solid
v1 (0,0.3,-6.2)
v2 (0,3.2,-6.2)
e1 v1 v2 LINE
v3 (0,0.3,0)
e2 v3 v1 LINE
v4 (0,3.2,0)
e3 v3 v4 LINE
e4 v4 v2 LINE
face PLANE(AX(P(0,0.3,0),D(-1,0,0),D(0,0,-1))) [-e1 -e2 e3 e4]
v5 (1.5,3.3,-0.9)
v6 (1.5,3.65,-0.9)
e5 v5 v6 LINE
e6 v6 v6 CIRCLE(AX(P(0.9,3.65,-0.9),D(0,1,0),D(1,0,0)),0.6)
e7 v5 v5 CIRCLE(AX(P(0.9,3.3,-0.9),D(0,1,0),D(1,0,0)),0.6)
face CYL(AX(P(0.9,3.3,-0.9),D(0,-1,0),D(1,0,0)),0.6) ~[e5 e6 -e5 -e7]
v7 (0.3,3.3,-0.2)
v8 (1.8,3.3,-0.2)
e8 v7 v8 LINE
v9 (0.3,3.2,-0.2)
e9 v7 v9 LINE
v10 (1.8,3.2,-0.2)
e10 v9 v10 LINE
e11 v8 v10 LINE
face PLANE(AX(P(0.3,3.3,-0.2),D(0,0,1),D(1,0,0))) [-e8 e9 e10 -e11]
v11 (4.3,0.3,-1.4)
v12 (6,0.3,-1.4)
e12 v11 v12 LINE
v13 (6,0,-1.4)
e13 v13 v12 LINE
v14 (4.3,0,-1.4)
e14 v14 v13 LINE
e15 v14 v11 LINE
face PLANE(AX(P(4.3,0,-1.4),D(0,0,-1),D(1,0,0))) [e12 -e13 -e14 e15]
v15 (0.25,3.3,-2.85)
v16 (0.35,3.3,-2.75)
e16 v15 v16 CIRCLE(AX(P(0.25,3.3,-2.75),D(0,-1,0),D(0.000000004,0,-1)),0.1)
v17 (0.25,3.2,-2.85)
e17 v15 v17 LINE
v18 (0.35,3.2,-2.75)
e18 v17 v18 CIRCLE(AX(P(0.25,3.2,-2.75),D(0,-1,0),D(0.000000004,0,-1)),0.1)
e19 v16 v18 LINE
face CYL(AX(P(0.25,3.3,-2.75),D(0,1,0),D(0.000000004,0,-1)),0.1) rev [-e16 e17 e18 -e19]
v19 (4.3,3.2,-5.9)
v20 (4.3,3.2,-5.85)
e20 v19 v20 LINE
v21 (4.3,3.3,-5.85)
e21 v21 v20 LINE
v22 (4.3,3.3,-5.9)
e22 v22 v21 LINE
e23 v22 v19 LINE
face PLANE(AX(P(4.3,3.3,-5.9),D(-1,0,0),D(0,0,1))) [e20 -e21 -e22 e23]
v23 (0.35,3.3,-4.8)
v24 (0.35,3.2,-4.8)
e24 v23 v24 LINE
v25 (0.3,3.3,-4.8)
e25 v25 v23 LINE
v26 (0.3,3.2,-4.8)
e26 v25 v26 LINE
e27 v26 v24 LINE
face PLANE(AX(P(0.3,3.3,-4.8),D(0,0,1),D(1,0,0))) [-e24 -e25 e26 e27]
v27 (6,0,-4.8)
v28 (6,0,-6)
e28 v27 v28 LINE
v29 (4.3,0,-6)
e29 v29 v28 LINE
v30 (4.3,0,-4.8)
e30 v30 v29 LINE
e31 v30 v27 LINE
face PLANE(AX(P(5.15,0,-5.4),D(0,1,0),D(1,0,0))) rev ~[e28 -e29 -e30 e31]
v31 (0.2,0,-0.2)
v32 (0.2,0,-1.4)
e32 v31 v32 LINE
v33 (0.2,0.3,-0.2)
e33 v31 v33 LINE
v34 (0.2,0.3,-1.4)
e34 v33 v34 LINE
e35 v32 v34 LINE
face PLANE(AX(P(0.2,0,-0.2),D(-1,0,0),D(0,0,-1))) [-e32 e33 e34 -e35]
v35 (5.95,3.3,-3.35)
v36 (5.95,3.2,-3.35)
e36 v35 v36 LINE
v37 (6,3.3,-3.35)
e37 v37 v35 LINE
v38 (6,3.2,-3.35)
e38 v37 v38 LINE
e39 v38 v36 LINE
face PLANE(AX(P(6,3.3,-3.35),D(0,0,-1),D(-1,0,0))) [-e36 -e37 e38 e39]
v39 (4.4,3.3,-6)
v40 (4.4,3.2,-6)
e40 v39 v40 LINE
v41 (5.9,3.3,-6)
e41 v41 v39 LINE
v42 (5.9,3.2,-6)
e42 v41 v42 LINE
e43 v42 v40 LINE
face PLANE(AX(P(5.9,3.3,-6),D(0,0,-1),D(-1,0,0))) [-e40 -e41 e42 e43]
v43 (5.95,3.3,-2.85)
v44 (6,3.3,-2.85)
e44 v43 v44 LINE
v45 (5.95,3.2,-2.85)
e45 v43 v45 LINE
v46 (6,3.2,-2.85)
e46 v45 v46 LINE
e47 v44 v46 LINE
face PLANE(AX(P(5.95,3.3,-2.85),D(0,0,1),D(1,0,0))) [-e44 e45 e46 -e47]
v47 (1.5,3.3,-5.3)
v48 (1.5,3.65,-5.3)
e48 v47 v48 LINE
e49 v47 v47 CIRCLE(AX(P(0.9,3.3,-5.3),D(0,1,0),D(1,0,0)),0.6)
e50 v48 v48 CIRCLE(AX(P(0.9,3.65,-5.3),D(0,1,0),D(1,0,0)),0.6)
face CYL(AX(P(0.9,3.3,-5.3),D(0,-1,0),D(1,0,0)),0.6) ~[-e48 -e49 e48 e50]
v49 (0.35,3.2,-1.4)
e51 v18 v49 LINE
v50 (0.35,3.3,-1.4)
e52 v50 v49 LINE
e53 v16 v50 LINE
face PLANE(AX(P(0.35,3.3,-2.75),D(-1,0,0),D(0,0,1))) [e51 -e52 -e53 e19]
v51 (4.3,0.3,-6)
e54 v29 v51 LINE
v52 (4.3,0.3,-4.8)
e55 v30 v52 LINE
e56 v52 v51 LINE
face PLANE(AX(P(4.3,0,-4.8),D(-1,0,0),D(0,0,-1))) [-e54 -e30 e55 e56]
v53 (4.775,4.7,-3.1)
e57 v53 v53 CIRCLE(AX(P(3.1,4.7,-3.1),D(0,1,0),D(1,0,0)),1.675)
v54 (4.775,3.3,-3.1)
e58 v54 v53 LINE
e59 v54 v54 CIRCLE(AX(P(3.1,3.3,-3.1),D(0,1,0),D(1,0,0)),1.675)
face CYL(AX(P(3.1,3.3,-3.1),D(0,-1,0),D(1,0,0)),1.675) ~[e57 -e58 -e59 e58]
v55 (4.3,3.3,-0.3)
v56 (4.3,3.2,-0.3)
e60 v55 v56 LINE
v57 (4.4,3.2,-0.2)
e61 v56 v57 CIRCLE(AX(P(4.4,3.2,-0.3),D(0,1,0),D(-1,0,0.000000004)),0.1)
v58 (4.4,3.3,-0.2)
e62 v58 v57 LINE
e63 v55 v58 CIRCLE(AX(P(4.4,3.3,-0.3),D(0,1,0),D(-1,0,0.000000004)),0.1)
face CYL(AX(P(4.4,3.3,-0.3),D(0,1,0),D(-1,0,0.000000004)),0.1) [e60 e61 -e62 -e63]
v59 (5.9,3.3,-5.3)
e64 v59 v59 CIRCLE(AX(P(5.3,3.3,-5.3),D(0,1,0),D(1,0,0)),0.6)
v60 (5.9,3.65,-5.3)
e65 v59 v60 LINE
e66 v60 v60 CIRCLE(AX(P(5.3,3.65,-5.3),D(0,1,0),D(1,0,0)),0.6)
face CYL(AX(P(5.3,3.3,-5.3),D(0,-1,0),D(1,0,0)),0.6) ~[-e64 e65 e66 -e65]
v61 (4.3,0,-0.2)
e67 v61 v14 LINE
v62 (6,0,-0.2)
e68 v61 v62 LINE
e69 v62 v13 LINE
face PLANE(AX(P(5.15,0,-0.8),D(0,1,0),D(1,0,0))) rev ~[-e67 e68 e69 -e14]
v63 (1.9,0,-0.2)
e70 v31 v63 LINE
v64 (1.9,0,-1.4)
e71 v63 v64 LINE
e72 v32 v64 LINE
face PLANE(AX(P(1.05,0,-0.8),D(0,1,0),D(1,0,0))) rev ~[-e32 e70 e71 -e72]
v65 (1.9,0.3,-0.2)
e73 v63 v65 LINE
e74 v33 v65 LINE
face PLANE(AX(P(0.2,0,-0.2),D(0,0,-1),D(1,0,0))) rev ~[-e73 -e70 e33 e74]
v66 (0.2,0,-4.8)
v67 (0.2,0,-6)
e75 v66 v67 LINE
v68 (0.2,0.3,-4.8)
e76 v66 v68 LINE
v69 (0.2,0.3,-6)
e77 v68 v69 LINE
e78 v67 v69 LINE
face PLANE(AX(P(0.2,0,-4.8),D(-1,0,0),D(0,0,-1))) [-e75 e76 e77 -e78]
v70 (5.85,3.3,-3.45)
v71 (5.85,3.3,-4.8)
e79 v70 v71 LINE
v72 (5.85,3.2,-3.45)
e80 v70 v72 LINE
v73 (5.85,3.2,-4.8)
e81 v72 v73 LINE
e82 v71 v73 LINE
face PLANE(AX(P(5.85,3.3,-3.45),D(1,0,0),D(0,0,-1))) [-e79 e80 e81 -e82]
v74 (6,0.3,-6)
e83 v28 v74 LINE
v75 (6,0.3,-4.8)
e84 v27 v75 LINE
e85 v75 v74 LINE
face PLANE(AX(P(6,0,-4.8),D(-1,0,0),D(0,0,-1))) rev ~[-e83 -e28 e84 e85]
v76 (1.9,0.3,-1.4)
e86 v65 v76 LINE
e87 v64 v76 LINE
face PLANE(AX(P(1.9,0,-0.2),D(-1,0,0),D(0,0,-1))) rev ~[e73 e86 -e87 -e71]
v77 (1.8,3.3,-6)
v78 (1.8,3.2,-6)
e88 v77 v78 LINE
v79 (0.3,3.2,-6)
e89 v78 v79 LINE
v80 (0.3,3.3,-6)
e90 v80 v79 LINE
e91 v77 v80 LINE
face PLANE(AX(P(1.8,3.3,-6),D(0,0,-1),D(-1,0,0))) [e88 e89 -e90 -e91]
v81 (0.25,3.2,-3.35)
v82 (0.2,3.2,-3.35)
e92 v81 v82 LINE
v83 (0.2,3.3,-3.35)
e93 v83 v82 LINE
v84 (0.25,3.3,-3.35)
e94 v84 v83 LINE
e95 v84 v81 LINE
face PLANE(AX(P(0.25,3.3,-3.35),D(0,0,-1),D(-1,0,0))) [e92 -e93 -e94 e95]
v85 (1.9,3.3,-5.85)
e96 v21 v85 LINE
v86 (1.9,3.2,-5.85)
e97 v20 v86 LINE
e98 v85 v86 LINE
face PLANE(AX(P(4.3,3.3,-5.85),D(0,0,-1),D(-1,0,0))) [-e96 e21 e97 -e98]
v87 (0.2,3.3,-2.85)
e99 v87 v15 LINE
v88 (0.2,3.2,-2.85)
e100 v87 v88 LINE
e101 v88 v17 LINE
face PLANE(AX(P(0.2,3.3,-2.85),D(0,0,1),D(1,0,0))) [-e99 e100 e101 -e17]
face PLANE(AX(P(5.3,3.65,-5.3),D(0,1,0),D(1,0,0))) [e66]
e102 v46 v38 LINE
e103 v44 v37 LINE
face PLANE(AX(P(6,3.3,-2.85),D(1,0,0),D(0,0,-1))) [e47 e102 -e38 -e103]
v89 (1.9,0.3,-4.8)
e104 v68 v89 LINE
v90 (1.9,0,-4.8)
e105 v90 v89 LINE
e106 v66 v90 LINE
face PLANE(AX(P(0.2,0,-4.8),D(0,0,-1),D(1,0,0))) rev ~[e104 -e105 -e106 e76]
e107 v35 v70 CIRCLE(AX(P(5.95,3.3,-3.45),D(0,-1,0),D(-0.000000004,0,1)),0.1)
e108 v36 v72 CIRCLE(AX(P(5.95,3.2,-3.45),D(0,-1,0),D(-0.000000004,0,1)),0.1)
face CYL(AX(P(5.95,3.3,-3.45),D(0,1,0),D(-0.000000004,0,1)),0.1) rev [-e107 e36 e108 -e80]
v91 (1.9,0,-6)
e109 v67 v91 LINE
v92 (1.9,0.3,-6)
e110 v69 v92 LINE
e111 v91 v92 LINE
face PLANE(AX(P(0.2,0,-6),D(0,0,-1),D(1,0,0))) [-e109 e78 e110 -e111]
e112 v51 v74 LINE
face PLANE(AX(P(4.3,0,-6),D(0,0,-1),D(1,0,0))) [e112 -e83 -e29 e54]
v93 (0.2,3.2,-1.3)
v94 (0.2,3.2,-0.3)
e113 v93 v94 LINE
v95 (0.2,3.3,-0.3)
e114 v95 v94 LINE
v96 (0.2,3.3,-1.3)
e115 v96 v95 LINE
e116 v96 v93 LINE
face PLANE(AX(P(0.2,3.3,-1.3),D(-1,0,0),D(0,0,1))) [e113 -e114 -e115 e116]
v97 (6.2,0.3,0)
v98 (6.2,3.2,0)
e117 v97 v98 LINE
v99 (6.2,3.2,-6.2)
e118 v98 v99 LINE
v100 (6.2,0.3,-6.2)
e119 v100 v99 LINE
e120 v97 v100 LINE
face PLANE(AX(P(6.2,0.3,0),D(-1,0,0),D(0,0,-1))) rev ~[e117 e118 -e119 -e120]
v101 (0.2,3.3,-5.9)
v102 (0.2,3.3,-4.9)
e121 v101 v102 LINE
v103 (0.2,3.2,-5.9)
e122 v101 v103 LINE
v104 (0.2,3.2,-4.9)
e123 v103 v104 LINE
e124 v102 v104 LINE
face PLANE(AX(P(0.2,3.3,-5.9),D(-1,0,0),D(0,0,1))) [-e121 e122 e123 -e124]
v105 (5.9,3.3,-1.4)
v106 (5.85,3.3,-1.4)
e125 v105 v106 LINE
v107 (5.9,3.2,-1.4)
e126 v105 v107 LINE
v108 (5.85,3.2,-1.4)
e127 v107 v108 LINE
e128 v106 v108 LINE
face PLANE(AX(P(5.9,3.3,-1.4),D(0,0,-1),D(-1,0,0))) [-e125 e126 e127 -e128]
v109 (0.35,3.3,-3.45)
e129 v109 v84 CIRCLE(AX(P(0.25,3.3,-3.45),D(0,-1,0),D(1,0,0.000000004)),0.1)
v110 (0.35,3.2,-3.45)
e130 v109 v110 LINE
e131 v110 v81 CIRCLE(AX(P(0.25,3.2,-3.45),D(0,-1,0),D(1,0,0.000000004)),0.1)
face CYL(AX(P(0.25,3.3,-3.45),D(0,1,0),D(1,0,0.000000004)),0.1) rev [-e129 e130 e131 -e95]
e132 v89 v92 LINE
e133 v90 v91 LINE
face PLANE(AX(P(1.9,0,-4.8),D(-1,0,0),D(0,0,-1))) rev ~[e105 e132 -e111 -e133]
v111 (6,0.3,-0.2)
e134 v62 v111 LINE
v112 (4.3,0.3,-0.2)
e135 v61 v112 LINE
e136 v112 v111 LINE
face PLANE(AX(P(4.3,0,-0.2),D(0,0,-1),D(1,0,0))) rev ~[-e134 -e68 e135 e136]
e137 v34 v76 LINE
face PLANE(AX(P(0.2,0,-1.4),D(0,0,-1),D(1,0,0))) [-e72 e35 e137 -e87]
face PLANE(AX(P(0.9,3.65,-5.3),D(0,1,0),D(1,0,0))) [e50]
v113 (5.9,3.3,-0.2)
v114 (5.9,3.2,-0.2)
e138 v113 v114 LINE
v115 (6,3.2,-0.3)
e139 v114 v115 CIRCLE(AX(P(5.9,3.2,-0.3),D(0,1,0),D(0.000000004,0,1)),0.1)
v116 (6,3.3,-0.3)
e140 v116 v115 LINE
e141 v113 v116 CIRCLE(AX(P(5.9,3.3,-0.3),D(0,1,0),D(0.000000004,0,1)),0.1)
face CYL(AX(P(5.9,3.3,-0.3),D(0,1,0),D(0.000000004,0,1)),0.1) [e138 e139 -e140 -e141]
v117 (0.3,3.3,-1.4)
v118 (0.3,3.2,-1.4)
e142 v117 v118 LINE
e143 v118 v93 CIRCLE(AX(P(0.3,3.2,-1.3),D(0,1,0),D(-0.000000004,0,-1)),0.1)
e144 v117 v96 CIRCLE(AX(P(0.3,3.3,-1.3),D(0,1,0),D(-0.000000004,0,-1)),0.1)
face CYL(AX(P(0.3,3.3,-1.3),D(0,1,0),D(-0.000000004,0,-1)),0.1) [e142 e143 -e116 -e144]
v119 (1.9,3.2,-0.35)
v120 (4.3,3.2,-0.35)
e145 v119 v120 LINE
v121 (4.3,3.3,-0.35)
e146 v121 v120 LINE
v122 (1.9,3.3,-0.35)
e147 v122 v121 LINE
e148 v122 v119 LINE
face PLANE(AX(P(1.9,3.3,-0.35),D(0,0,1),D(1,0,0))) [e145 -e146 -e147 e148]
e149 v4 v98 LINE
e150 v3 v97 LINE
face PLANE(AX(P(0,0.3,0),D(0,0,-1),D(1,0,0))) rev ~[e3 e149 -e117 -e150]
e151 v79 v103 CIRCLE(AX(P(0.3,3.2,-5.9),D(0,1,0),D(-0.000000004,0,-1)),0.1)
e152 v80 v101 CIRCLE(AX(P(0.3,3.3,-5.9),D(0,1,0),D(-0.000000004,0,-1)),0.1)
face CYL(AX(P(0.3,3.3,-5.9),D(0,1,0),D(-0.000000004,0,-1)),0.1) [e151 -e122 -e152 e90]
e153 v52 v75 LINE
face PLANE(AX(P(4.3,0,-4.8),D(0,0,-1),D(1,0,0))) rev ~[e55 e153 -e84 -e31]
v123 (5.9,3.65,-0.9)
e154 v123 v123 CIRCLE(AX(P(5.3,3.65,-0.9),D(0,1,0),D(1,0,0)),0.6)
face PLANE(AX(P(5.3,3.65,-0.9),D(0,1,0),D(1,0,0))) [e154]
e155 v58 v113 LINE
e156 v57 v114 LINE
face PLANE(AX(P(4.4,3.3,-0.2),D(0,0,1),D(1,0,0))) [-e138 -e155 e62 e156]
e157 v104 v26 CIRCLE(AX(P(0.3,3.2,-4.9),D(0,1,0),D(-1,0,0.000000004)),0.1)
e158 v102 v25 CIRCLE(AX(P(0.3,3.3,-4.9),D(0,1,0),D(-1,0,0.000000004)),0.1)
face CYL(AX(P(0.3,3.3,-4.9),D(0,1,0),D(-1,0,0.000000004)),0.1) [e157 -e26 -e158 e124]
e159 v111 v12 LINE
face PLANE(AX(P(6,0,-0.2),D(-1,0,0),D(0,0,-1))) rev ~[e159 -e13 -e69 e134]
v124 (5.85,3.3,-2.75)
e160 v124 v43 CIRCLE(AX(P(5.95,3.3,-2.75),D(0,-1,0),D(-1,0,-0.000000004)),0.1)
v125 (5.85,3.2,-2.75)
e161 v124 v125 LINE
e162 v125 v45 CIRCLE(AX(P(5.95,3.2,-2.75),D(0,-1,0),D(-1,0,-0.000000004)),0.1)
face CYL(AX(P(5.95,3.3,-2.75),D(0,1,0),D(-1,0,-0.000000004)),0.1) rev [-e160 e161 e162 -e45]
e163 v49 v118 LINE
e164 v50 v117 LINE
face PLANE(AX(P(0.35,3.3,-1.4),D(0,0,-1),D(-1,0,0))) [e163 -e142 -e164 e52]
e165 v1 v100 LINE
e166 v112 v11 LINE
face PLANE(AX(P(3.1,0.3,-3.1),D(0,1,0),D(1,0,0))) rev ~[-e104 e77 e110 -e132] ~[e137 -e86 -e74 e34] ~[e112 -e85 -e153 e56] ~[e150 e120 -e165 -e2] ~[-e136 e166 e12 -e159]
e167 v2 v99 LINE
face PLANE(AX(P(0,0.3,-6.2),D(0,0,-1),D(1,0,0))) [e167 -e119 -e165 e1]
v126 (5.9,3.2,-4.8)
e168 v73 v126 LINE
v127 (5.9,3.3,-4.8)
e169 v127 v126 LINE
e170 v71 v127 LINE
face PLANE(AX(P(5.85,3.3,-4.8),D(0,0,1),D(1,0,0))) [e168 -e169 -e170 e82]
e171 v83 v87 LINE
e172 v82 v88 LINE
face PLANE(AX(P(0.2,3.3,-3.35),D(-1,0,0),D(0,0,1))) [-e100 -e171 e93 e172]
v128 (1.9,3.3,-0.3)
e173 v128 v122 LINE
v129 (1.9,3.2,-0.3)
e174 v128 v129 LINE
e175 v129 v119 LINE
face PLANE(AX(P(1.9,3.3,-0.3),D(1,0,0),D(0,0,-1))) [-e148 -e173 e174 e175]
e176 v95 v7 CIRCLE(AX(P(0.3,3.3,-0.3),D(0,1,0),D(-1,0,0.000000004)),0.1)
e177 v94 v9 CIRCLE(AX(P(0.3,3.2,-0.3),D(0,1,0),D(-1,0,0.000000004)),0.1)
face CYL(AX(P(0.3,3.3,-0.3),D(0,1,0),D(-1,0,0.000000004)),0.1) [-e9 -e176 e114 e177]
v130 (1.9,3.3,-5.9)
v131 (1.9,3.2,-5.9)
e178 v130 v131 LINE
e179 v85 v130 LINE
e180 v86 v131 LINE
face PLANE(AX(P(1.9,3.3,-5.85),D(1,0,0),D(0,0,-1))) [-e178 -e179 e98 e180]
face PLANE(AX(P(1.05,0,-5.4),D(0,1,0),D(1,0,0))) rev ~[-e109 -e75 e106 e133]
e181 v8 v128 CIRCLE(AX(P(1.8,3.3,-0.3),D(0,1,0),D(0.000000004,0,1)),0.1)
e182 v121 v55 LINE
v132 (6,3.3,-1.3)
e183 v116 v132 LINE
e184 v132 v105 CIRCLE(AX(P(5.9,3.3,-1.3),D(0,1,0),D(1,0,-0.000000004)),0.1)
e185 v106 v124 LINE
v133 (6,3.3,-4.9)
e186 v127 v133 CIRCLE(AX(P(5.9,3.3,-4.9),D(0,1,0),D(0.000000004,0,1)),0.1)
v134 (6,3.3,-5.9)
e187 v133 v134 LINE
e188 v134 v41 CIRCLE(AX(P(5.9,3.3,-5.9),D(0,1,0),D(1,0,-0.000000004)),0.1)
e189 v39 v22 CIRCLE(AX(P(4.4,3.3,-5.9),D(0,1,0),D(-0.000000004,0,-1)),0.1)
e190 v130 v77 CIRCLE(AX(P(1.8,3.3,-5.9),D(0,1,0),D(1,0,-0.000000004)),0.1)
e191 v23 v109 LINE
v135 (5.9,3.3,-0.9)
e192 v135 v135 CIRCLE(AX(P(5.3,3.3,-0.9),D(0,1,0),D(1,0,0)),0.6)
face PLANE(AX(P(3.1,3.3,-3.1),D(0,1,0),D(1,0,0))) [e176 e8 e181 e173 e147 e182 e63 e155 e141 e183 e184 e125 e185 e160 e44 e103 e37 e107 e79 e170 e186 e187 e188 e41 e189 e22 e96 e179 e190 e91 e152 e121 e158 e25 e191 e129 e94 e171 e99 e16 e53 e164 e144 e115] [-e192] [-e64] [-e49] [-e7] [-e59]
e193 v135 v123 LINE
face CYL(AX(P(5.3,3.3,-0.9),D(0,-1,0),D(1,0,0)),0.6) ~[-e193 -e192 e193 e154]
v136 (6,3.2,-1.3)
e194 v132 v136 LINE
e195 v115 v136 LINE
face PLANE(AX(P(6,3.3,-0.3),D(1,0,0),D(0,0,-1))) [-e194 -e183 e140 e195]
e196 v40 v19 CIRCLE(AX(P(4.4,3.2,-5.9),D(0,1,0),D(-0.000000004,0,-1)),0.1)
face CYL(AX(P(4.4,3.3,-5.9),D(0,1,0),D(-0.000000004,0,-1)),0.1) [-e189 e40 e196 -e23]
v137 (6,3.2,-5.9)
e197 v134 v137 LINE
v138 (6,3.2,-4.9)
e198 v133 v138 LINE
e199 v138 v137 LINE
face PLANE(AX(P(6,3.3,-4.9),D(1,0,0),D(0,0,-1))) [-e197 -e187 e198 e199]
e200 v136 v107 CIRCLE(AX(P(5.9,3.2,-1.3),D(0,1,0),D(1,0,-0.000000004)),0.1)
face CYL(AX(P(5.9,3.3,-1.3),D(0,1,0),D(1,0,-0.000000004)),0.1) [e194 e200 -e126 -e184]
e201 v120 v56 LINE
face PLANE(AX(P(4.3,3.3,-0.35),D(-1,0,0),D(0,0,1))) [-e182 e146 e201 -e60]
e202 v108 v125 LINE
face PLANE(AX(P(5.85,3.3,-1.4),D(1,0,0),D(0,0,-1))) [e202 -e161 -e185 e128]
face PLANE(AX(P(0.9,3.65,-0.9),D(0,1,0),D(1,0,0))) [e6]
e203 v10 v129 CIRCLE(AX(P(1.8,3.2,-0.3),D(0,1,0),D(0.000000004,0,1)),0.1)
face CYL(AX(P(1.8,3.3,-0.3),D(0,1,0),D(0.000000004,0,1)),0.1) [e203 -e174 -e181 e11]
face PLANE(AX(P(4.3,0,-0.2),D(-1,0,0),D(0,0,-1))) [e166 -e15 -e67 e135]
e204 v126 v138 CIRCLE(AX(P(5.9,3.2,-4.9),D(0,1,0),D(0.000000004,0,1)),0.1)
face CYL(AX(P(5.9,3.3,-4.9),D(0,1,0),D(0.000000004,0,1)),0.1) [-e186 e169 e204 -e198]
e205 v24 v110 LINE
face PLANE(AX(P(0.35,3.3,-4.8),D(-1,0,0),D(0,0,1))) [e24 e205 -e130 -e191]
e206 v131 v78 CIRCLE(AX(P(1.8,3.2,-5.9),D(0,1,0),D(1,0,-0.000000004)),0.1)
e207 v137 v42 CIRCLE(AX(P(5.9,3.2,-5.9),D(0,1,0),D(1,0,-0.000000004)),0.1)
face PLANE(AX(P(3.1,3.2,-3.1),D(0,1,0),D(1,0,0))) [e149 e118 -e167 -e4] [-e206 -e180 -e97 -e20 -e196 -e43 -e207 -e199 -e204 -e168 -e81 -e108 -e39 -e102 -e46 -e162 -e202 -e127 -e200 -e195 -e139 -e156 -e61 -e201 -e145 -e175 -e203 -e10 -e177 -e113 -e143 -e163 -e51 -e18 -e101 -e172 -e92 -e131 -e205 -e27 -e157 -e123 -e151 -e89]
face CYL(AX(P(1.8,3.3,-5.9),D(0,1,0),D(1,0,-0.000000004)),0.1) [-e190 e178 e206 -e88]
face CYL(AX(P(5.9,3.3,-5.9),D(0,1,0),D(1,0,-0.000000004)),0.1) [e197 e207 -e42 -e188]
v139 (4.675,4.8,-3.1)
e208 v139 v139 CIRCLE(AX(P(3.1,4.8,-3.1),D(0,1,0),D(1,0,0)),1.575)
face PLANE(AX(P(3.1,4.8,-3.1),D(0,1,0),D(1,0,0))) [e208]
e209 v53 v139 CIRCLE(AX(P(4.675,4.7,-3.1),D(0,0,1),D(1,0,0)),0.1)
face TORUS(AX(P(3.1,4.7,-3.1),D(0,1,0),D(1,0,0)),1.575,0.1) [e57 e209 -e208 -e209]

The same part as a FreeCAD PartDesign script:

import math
import FreeCAD as App
import Part
import Sketcher
from FreeCAD import Vector


def edges_at(feature, points):
    """Names of the edges that pass closest to the given points."""
    edges = feature.Shape.Edges
    near = lambda p: min(range(len(edges)), key=lambda i: edges[i].distToShape(Part.Vertex(*p))[0])
    return sorted({f"Edge{near(p) + 1}" for p in points})


def add_polygon(sketch, points):
    """Adds a closed chain of lines whose ends are joined by coincident constraints."""
    first, n = sketch.GeometryCount, len(points)
    for a, b in zip(points, points[1:] + points[:1]):
        sketch.addGeometry(Part.LineSegment(App.Vector(*a, 0), App.Vector(*b, 0)), False)
    for i in range(n):
        sketch.addConstraint(Sketcher.Constraint("Coincident", first + i, 2, first + (i + 1) % n, 1))

doc = App.newDocument("Part")
body = doc.addObject("PartDesign::Body", "Body")

# Sketch on XZ plane
sketch1 = doc.addObject("Sketcher::SketchObject", "Sketch")
body.addObject(sketch1)
sketch1.AttachmentSupport = (doc.XZ_Plane, [""])
sketch1.MapMode = "FlatFace"
add_polygon(sketch1, [(0.2, -6), (0.2, -4.8), (1.9, -4.8), (1.9, -6)])  # lines 0-3
sketch1.addConstraint(Sketcher.Constraint("Vertical", 0))
sketch1.addConstraint(Sketcher.Constraint("Horizontal", 1))
sketch1.addConstraint(Sketcher.Constraint("Vertical", 2))
sketch1.addConstraint(Sketcher.Constraint("Horizontal", 3))
sketch1.addConstraint(Sketcher.Constraint("DistanceX", 1, 1, 1, 2, 1.7))
sketch1.addConstraint(Sketcher.Constraint("DistanceY", 0, 1, 0, 2, 1.2))
sketch1.addConstraint(Sketcher.Constraint("DistanceY", 2, 2, -1, 1, 6.0))
sketch1.addConstraint(Sketcher.Constraint("DistanceX", -1, 1, 0, 2, 0.2))
pad1 = doc.addObject("PartDesign::Pad", "Pad")
body.addObject(pad1)
pad1.Profile = sketch1
pad1.Length = 0.3
pad1.Reversed = True
body2 = doc.addObject("PartDesign::Body", "Body001")

# Sketch on XZ plane
sketch2 = doc.addObject("Sketcher::SketchObject", "Sketch001")
body2.addObject(sketch2)
sketch2.AttachmentSupport = (doc.getObject("XZ_Plane001"), [""])
sketch2.MapMode = "FlatFace"
add_polygon(sketch2, [(0.2, -1.4), (0.2, -0.2), (1.9, -0.2), (1.9, -1.4)])  # lines 0-3
sketch2.addConstraint(Sketcher.Constraint("Vertical", 0))
sketch2.addConstraint(Sketcher.Constraint("Horizontal", 1))
sketch2.addConstraint(Sketcher.Constraint("Vertical", 2))
sketch2.addConstraint(Sketcher.Constraint("Horizontal", 3))
sketch2.addConstraint(Sketcher.Constraint("DistanceX", 1, 1, 1, 2, 1.7))
sketch2.addConstraint(Sketcher.Constraint("DistanceY", 0, 1, 0, 2, 1.2))
sketch2.addConstraint(Sketcher.Constraint("DistanceX", -1, 1, 0, 2, 0.2))
sketch2.addConstraint(Sketcher.Constraint("DistanceY", 0, 2, -1, 1, 0.2))
pad2 = doc.addObject("PartDesign::Pad", "Pad001")
body2.addObject(pad2)
pad2.Profile = sketch2
pad2.Length = 0.3
pad2.Reversed = True
body3 = doc.addObject("PartDesign::Body", "Body002")

# Sketch on XZ plane
sketch3 = doc.addObject("Sketcher::SketchObject", "Sketch002")
body3.addObject(sketch3)
sketch3.AttachmentSupport = (doc.getObject("XZ_Plane002"), [""])
sketch3.MapMode = "FlatFace"
add_polygon(sketch3, [(4.3, -1.4), (4.3, -0.2), (6, -0.2), (6, -1.4)])  # lines 0-3
sketch3.addConstraint(Sketcher.Constraint("Vertical", 0))
sketch3.addConstraint(Sketcher.Constraint("Horizontal", 1))
sketch3.addConstraint(Sketcher.Constraint("Vertical", 2))
sketch3.addConstraint(Sketcher.Constraint("Horizontal", 3))
sketch3.addConstraint(Sketcher.Constraint("DistanceX", 1, 1, 1, 2, 1.7))
sketch3.addConstraint(Sketcher.Constraint("DistanceY", 0, 1, 0, 2, 1.2))
sketch3.addConstraint(Sketcher.Constraint("DistanceX", -1, 1, 1, 2, 6.0))
sketch3.addConstraint(Sketcher.Constraint("DistanceY", 0, 2, -1, 1, 0.2))
pad3 = doc.addObject("PartDesign::Pad", "Pad002")
body3.addObject(pad3)
pad3.Profile = sketch3
pad3.Length = 0.3
pad3.Reversed = True
body4 = doc.addObject("PartDesign::Body", "Body003")

# Sketch on XZ plane
sketch4 = doc.addObject("Sketcher::SketchObject", "Sketch003")
body4.addObject(sketch4)
sketch4.AttachmentSupport = (doc.getObject("XZ_Plane003"), [""])
sketch4.MapMode = "FlatFace"
add_polygon(sketch4, [(4.3, -6), (4.3, -4.8), (6, -4.8), (6, -6)])  # lines 0-3
sketch4.addConstraint(Sketcher.Constraint("Vertical", 0))
sketch4.addConstraint(Sketcher.Constraint("Horizontal", 1))
sketch4.addConstraint(Sketcher.Constraint("Vertical", 2))
sketch4.addConstraint(Sketcher.Constraint("Horizontal", 3))
sketch4.addConstraint(Sketcher.Constraint("DistanceX", 1, 1, 1, 2, 1.7))
sketch4.addConstraint(Sketcher.Constraint("DistanceY", 0, 1, 0, 2, 1.2))
sketch4.addConstraint(Sketcher.Constraint("DistanceX", -1, 1, 1, 2, 6.0))
sketch4.addConstraint(Sketcher.Constraint("DistanceY", 2, 2, -1, 1, 6.0))
pad4 = doc.addObject("PartDesign::Pad", "Pad003")
body4.addObject(pad4)
pad4.Profile = sketch4
pad4.Length = 0.3
pad4.Reversed = True
body.AllowCompound = True
doc.recompute()

boolean = doc.addObject("PartDesign::Boolean", "Boolean")
body.addObject(boolean)
boolean.Type = "Fuse"
boolean.addObjects([body2])
doc.recompute()

boolean2 = doc.addObject("PartDesign::Boolean", "Boolean001")
body.addObject(boolean2)
boolean2.Type = "Fuse"
boolean2.addObjects([body3])
doc.recompute()

boolean3 = doc.addObject("PartDesign::Boolean", "Boolean002")
body.addObject(boolean3)
boolean3.Type = "Fuse"
boolean3.addObjects([body4])

# Sketch on XZ plane
sketch5 = doc.addObject("Sketcher::SketchObject", "Sketch004")
body.addObject(sketch5)
sketch5.AttachmentSupport = (doc.XZ_Plane, [""])
sketch5.MapMode = "FlatFace"
sketch5.AttachmentOffset = App.Placement(Vector(0, 0, -0.3), App.Rotation())
add_polygon(sketch5, [(0, -6), (0, 0), (6, 0), (6, -6)])  # lines 0-3
sketch5.addConstraint(Sketcher.Constraint("Vertical", 0))
sketch5.addConstraint(Sketcher.Constraint("Horizontal", 1))
sketch5.addConstraint(Sketcher.Constraint("Vertical", 2))
sketch5.addConstraint(Sketcher.Constraint("Horizontal", 3))
sketch5.addConstraint(Sketcher.Constraint("Coincident", 0, 2, -1, 1))
sketch5.addConstraint(Sketcher.Constraint("Equal", 3, 0))
sketch5.addConstraint(Sketcher.Constraint("DistanceX", 1, 1, 1, 2, 6.2))
pad5 = doc.addObject("PartDesign::Pad", "Pad004")
body.addObject(pad5)
pad5.Profile = sketch5
pad5.Length = 3
pad5.Reversed = True

# Sketch on XZ plane
sketch6 = doc.addObject("Sketcher::SketchObject", "Sketch005")
body.addObject(sketch6)
sketch6.AttachmentSupport = (doc.XZ_Plane, [""])
sketch6.MapMode = "FlatFace"
sketch6.AttachmentOffset = App.Placement(Vector(0, 0, -3.3), App.Rotation())
add_polygon(sketch6, [(0, -6.2), (0, 0), (6.2, 0), (6.2, -6.2)])  # lines 0-3
sketch6.addGeometry(Part.LineSegment(Vector(1.8, -0.2, 0), Vector(0.3, -0.2, 0)), False)  # 4
sketch6.addGeometry(Part.ArcOfCircle(Part.Circle(Vector(0.3, -0.3, 0), Vector(0, 0, 1), 0.1), math.radians(90), math.radians(180)), False)  # 5
sketch6.addGeometry(Part.LineSegment(Vector(0.2, -0.3, 0), Vector(0.2, -1.3, 0)), False)  # 6
sketch6.addGeometry(Part.ArcOfCircle(Part.Circle(Vector(0.3, -1.3, 0), Vector(0, 0, 1), 0.1), math.radians(180), math.radians(270)), False)  # 7
sketch6.addGeometry(Part.LineSegment(Vector(0.3, -1.4, 0), Vector(0.35, -1.4, 0)), False)  # 8
sketch6.addGeometry(Part.LineSegment(Vector(0.35, -1.4, 0), Vector(0.35, -2.75, 0)), False)  # 9
sketch6.addGeometry(Part.ArcOfCircle(Part.Circle(Vector(0.25, -2.75, 0), Vector(0, 0, 1), 0.1), math.radians(-90), math.radians(0)), False)  # 10
sketch6.addGeometry(Part.LineSegment(Vector(0.25, -2.85, 0), Vector(0.2, -2.85, 0)), False)  # 11
sketch6.addGeometry(Part.LineSegment(Vector(0.2, -2.85, 0), Vector(0.2, -3.35, 0)), False)  # 12
sketch6.addGeometry(Part.LineSegment(Vector(0.2, -3.35, 0), Vector(0.25, -3.35, 0)), False)  # 13
sketch6.addGeometry(Part.ArcOfCircle(Part.Circle(Vector(0.25, -3.45, 0), Vector(0, 0, 1), 0.1), math.radians(0), math.radians(90)), False)  # 14
sketch6.addGeometry(Part.LineSegment(Vector(0.35, -3.45, 0), Vector(0.35, -4.8, 0)), False)  # 15
sketch6.addGeometry(Part.LineSegment(Vector(0.35, -4.8, 0), Vector(0.3, -4.8, 0)), False)  # 16
sketch6.addGeometry(Part.ArcOfCircle(Part.Circle(Vector(0.3, -4.9, 0), Vector(0, 0, 1), 0.1), math.radians(90), math.radians(180)), False)  # 17
sketch6.addGeometry(Part.LineSegment(Vector(0.2, -4.9, 0), Vector(0.2, -5.9, 0)), False)  # 18
sketch6.addGeometry(Part.ArcOfCircle(Part.Circle(Vector(0.3, -5.9, 0), Vector(0, 0, 1), 0.1), math.radians(180), math.radians(270)), False)  # 19
sketch6.addGeometry(Part.LineSegment(Vector(0.3, -6, 0), Vector(1.8, -6, 0)), False)  # 20
sketch6.addGeometry(Part.ArcOfCircle(Part.Circle(Vector(1.8, -5.9, 0), Vector(0, 0, 1), 0.1), math.radians(-90), math.radians(0)), False)  # 21
sketch6.addGeometry(Part.LineSegment(Vector(1.9, -5.9, 0), Vector(1.9, -5.85, 0)), False)  # 22
sketch6.addGeometry(Part.LineSegment(Vector(1.9, -5.85, 0), Vector(4.3, -5.85, 0)), False)  # 23
sketch6.addGeometry(Part.LineSegment(Vector(4.3, -5.85, 0), Vector(4.3, -5.9, 0)), False)  # 24
sketch6.addGeometry(Part.ArcOfCircle(Part.Circle(Vector(4.4, -5.9, 0), Vector(0, 0, 1), 0.1), math.radians(180), math.radians(270)), False)  # 25
sketch6.addGeometry(Part.LineSegment(Vector(4.4, -6, 0), Vector(5.9, -6, 0)), False)  # 26
sketch6.addGeometry(Part.ArcOfCircle(Part.Circle(Vector(5.9, -5.9, 0), Vector(0, 0, 1), 0.1), math.radians(-90), math.radians(0)), False)  # 27
sketch6.addGeometry(Part.LineSegment(Vector(6, -5.9, 0), Vector(6, -4.9, 0)), False)  # 28
sketch6.addGeometry(Part.ArcOfCircle(Part.Circle(Vector(5.9, -4.9, 0), Vector(0, 0, 1), 0.1), math.radians(0), math.radians(90)), False)  # 29
sketch6.addGeometry(Part.LineSegment(Vector(5.9, -4.8, 0), Vector(5.85, -4.8, 0)), False)  # 30
sketch6.addGeometry(Part.LineSegment(Vector(5.85, -4.8, 0), Vector(5.85, -3.45, 0)), False)  # 31
sketch6.addGeometry(Part.ArcOfCircle(Part.Circle(Vector(5.95, -3.45, 0), Vector(0, 0, 1), 0.1), math.radians(90), math.radians(180)), False)  # 32
sketch6.addGeometry(Part.LineSegment(Vector(5.95, -3.35, 0), Vector(6, -3.35, 0)), False)  # 33
sketch6.addGeometry(Part.LineSegment(Vector(6, -3.35, 0), Vector(6, -2.85, 0)), False)  # 34
sketch6.addGeometry(Part.LineSegment(Vector(6, -2.85, 0), Vector(5.95, -2.85, 0)), False)  # 35
sketch6.addGeometry(Part.ArcOfCircle(Part.Circle(Vector(5.95, -2.75, 0), Vector(0, 0, 1), 0.1), math.radians(180), math.radians(270)), False)  # 36
sketch6.addGeometry(Part.LineSegment(Vector(5.85, -2.75, 0), Vector(5.85, -1.4, 0)), False)  # 37
sketch6.addGeometry(Part.LineSegment(Vector(5.85, -1.4, 0), Vector(5.9, -1.4, 0)), False)  # 38
sketch6.addGeometry(Part.ArcOfCircle(Part.Circle(Vector(5.9, -1.3, 0), Vector(0, 0, 1), 0.1), math.radians(-90), math.radians(0)), False)  # 39
sketch6.addGeometry(Part.LineSegment(Vector(6, -1.3, 0), Vector(6, -0.3, 0)), False)  # 40
sketch6.addGeometry(Part.ArcOfCircle(Part.Circle(Vector(5.9, -0.3, 0), Vector(0, 0, 1), 0.1), math.radians(0), math.radians(90)), False)  # 41
sketch6.addGeometry(Part.LineSegment(Vector(5.9, -0.2, 0), Vector(4.4, -0.2, 0)), False)  # 42
sketch6.addGeometry(Part.ArcOfCircle(Part.Circle(Vector(4.4, -0.3, 0), Vector(0, 0, 1), 0.1), math.radians(90), math.radians(180)), False)  # 43
sketch6.addGeometry(Part.LineSegment(Vector(4.3, -0.3, 0), Vector(4.3, -0.35, 0)), False)  # 44
sketch6.addGeometry(Part.LineSegment(Vector(4.3, -0.35, 0), Vector(1.9, -0.35, 0)), False)  # 45
sketch6.addGeometry(Part.LineSegment(Vector(1.9, -0.35, 0), Vector(1.9, -0.3, 0)), False)  # 46
sketch6.addGeometry(Part.ArcOfCircle(Part.Circle(Vector(1.8, -0.3, 0), Vector(0, 0, 1), 0.1), math.radians(0), math.radians(90)), False)  # 47
sketch6.addConstraint(Sketcher.Constraint("Tangent", 4, 2, 5, 1))
sketch6.addConstraint(Sketcher.Constraint("Tangent", 5, 2, 6, 1))
sketch6.addConstraint(Sketcher.Constraint("Tangent", 6, 2, 7, 1))
sketch6.addConstraint(Sketcher.Constraint("Tangent", 7, 2, 8, 1))
sketch6.addConstraint(Sketcher.Constraint("Coincident", 8, 2, 9, 1))
sketch6.addConstraint(Sketcher.Constraint("Tangent", 9, 2, 10, 2))
sketch6.addConstraint(Sketcher.Constraint("Tangent", 10, 1, 11, 1))
sketch6.addConstraint(Sketcher.Constraint("Coincident", 11, 2, 12, 1))
sketch6.addConstraint(Sketcher.Constraint("Coincident", 12, 2, 13, 1))
sketch6.addConstraint(Sketcher.Constraint("Tangent", 13, 2, 14, 2))
sketch6.addConstraint(Sketcher.Constraint("Tangent", 14, 1, 15, 1))
sketch6.addConstraint(Sketcher.Constraint("Coincident", 15, 2, 16, 1))
sketch6.addConstraint(Sketcher.Constraint("Tangent", 16, 2, 17, 1))
sketch6.addConstraint(Sketcher.Constraint("Tangent", 17, 2, 18, 1))
sketch6.addConstraint(Sketcher.Constraint("Tangent", 18, 2, 19, 1))
sketch6.addConstraint(Sketcher.Constraint("Tangent", 19, 2, 20, 1))
sketch6.addConstraint(Sketcher.Constraint("Tangent", 20, 2, 21, 1))
sketch6.addConstraint(Sketcher.Constraint("Tangent", 21, 2, 22, 1))
sketch6.addConstraint(Sketcher.Constraint("Coincident", 22, 2, 23, 1))
sketch6.addConstraint(Sketcher.Constraint("Coincident", 23, 2, 24, 1))
sketch6.addConstraint(Sketcher.Constraint("Tangent", 24, 2, 25, 1))
sketch6.addConstraint(Sketcher.Constraint("Tangent", 25, 2, 26, 1))
sketch6.addConstraint(Sketcher.Constraint("Tangent", 26, 2, 27, 1))
sketch6.addConstraint(Sketcher.Constraint("Tangent", 27, 2, 28, 1))
sketch6.addConstraint(Sketcher.Constraint("Tangent", 28, 2, 29, 1))
sketch6.addConstraint(Sketcher.Constraint("Tangent", 29, 2, 30, 1))
sketch6.addConstraint(Sketcher.Constraint("Coincident", 30, 2, 31, 1))
sketch6.addConstraint(Sketcher.Constraint("Tangent", 31, 2, 32, 2))
sketch6.addConstraint(Sketcher.Constraint("Tangent", 32, 1, 33, 1))
sketch6.addConstraint(Sketcher.Constraint("Coincident", 33, 2, 34, 1))
sketch6.addConstraint(Sketcher.Constraint("Coincident", 34, 2, 35, 1))
sketch6.addConstraint(Sketcher.Constraint("Tangent", 35, 2, 36, 2))
sketch6.addConstraint(Sketcher.Constraint("Tangent", 36, 1, 37, 1))
sketch6.addConstraint(Sketcher.Constraint("Coincident", 37, 2, 38, 1))
sketch6.addConstraint(Sketcher.Constraint("Tangent", 38, 2, 39, 1))
sketch6.addConstraint(Sketcher.Constraint("Tangent", 39, 2, 40, 1))
sketch6.addConstraint(Sketcher.Constraint("Tangent", 40, 2, 41, 1))
sketch6.addConstraint(Sketcher.Constraint("Tangent", 41, 2, 42, 1))
sketch6.addConstraint(Sketcher.Constraint("Tangent", 42, 2, 43, 1))
sketch6.addConstraint(Sketcher.Constraint("Tangent", 43, 2, 44, 1))
sketch6.addConstraint(Sketcher.Constraint("Coincident", 44, 2, 45, 1))
sketch6.addConstraint(Sketcher.Constraint("Coincident", 45, 2, 46, 1))
sketch6.addConstraint(Sketcher.Constraint("Tangent", 46, 2, 47, 1))
sketch6.addConstraint(Sketcher.Constraint("Tangent", 47, 2, 4, 1))
sketch6.addConstraint(Sketcher.Constraint("Vertical", 0))
sketch6.addConstraint(Sketcher.Constraint("Horizontal", 1))
sketch6.addConstraint(Sketcher.Constraint("Vertical", 2))
sketch6.addConstraint(Sketcher.Constraint("Horizontal", 3))
sketch6.addConstraint(Sketcher.Constraint("Horizontal", 4))
sketch6.addConstraint(Sketcher.Constraint("Vertical", 6))
sketch6.addConstraint(Sketcher.Constraint("Horizontal", 8))
sketch6.addConstraint(Sketcher.Constraint("Vertical", 9))
sketch6.addConstraint(Sketcher.Constraint("Horizontal", 11))
sketch6.addConstraint(Sketcher.Constraint("Vertical", 12))
sketch6.addConstraint(Sketcher.Constraint("Horizontal", 13))
sketch6.addConstraint(Sketcher.Constraint("Vertical", 15))
sketch6.addConstraint(Sketcher.Constraint("Horizontal", 16))
sketch6.addConstraint(Sketcher.Constraint("Vertical", 18))
sketch6.addConstraint(Sketcher.Constraint("Horizontal", 20))
sketch6.addConstraint(Sketcher.Constraint("Vertical", 22))
sketch6.addConstraint(Sketcher.Constraint("Horizontal", 23))
sketch6.addConstraint(Sketcher.Constraint("Vertical", 24))
sketch6.addConstraint(Sketcher.Constraint("Horizontal", 26))
sketch6.addConstraint(Sketcher.Constraint("Vertical", 28))
sketch6.addConstraint(Sketcher.Constraint("Horizontal", 30))
sketch6.addConstraint(Sketcher.Constraint("Vertical", 31))
sketch6.addConstraint(Sketcher.Constraint("Horizontal", 33))
sketch6.addConstraint(Sketcher.Constraint("Vertical", 34))
sketch6.addConstraint(Sketcher.Constraint("Horizontal", 35))
sketch6.addConstraint(Sketcher.Constraint("Vertical", 37))
sketch6.addConstraint(Sketcher.Constraint("Horizontal", 38))
sketch6.addConstraint(Sketcher.Constraint("Vertical", 40))
sketch6.addConstraint(Sketcher.Constraint("Horizontal", 42))
sketch6.addConstraint(Sketcher.Constraint("Vertical", 44))
sketch6.addConstraint(Sketcher.Constraint("Horizontal", 45))
sketch6.addConstraint(Sketcher.Constraint("Vertical", 46))
sketch6.addConstraint(Sketcher.Constraint("Coincident", 0, 2, -1, 1))
sketch6.addConstraint(Sketcher.Constraint("Equal", 5, 7))
sketch6.addConstraint(Sketcher.Constraint("Equal", 7, 10))
sketch6.addConstraint(Sketcher.Constraint("Equal", 10, 14))
sketch6.addConstraint(Sketcher.Constraint("Equal", 14, 17))
sketch6.addConstraint(Sketcher.Constraint("Equal", 17, 19))
sketch6.addConstraint(Sketcher.Constraint("Equal", 19, 21))
sketch6.addConstraint(Sketcher.Constraint("Equal", 21, 25))
sketch6.addConstraint(Sketcher.Constraint("Equal", 25, 27))
sketch6.addConstraint(Sketcher.Constraint("Equal", 27, 29))
sketch6.addConstraint(Sketcher.Constraint("Equal", 29, 32))
sketch6.addConstraint(Sketcher.Constraint("Equal", 32, 36))
sketch6.addConstraint(Sketcher.Constraint("Equal", 36, 39))
sketch6.addConstraint(Sketcher.Constraint("Equal", 39, 41))
sketch6.addConstraint(Sketcher.Constraint("Equal", 41, 43))
sketch6.addConstraint(Sketcher.Constraint("Equal", 43, 47))
sketch6.addConstraint(Sketcher.Constraint("Horizontal", 21, 3, 25, 3))
sketch6.addConstraint(Sketcher.Constraint("Horizontal", 17, 3, 29, 3))
sketch6.addConstraint(Sketcher.Constraint("Horizontal", 14, 3, 32, 3))
sketch6.addConstraint(Sketcher.Constraint("Horizontal", 10, 3, 36, 3))
sketch6.addConstraint(Sketcher.Constraint("Horizontal", 7, 3, 39, 3))
sketch6.addConstraint(Sketcher.Constraint("Horizontal", 5, 3, 41, 3))
sketch6.addConstraint(Sketcher.Constraint("Vertical", 10, 3, 14, 3))
sketch6.addConstraint(Sketcher.Constraint("Vertical", 7, 3, 17, 3))
sketch6.addConstraint(Sketcher.Constraint("Vertical", 32, 3, 36, 3))
sketch6.addConstraint(Sketcher.Constraint("Vertical", 29, 3, 39, 3))
sketch6.addConstraint(Sketcher.Constraint("Vertical", 25, 3, 43, 3))
sketch6.addConstraint(Sketcher.Constraint("Vertical", 21, 3, 47, 3))
sketch6.addConstraint(Sketcher.Constraint("Vertical", 6, 2, 11, 2))
sketch6.addConstraint(Sketcher.Constraint("Vertical", 28, 2, 33, 2))
sketch6.addConstraint(Sketcher.Constraint("Equal", 20, 26))
sketch6.addConstraint(Sketcher.Constraint("Equal", 16, 30))
sketch6.addConstraint(Sketcher.Constraint("Equal", 3, 0))
sketch6.addConstraint(Sketcher.Constraint("Equal", 9, 15))
sketch6.addConstraint(Sketcher.Constraint("Equal", 6, 18))
sketch6.addConstraint(Sketcher.Constraint("Equal", 38, 22))
sketch6.addConstraint(Sketcher.Constraint("Equal", 24, 44))
sketch6.addConstraint(Sketcher.Constraint("Radius", 5, 0.1))
sketch6.addConstraint(Sketcher.Constraint("DistanceY", 6, 2, 6, 1, 1.0))
sketch6.addConstraint(Sketcher.Constraint("DistanceX", 1, 1, 1, 2, 6.2))
sketch6.addConstraint(Sketcher.Constraint("DistanceX", 4, 2, 4, 1, 1.5))
sketch6.addConstraint(Sketcher.Constraint("DistanceX", 23, 1, 23, 2, 2.4))
sketch6.addConstraint(Sketcher.Constraint("DistanceY", 12, 2, 12, 1, 0.5))
sketch6.addConstraint(Sketcher.Constraint("DistanceY", 19, 2, -1, 1, 6.0))
sketch6.addConstraint(Sketcher.Constraint("DistanceX", -1, 1, 27, 2, 6.0))
sketch6.addConstraint(Sketcher.Constraint("DistanceX", 8, 1, 8, 2, 0.05))
sketch6.addConstraint(Sketcher.Constraint("DistanceY", 9, 2, 9, 1, 1.35))
pocket1 = doc.addObject("PartDesign::Pocket", "Pocket")
body.addObject(pocket1)
pocket1.Profile = sketch6
pocket1.Length = 0.1
pocket1.Reversed = True

# Sketch on XZ plane
sketch7 = doc.addObject("Sketcher::SketchObject", "Sketch006")
body.addObject(sketch7)
sketch7.AttachmentSupport = (doc.XZ_Plane, [""])
sketch7.MapMode = "FlatFace"
sketch7.AttachmentOffset = App.Placement(Vector(0, 0, -3.3), App.Rotation())
sketch7.addGeometry(Part.Circle(Vector(0.9, -5.3, 0), Vector(0, 0, 1), 0.6), False)
sketch7.addGeometry(Part.Circle(Vector(5.3, -5.3, 0), Vector(0, 0, 1), 0.6), False)
sketch7.addGeometry(Part.Circle(Vector(0.9, -0.9, 0), Vector(0, 0, 1), 0.6), False)
sketch7.addGeometry(Part.Circle(Vector(5.3, -0.9, 0), Vector(0, 0, 1), 0.6), False)
sketch7.addConstraint(Sketcher.Constraint("Equal", 0, 1))
sketch7.addConstraint(Sketcher.Constraint("Equal", 1, 2))
sketch7.addConstraint(Sketcher.Constraint("Equal", 2, 3))
sketch7.addConstraint(Sketcher.Constraint("Horizontal", 0, 3, 1, 3))
sketch7.addConstraint(Sketcher.Constraint("Horizontal", 2, 3, 3, 3))
sketch7.addConstraint(Sketcher.Constraint("Vertical", 0, 3, 2, 3))
sketch7.addConstraint(Sketcher.Constraint("Vertical", 1, 3, 3, 3))
sketch7.addConstraint(Sketcher.Constraint("Diameter", 0, 1.2))
sketch7.addConstraint(Sketcher.Constraint("DistanceX", -1, 1, 0, 3, 0.9))
sketch7.addConstraint(Sketcher.Constraint("DistanceY", 0, 3, -1, 1, 5.3))
sketch7.addConstraint(Sketcher.Constraint("DistanceX", -1, 1, 1, 3, 5.3))
sketch7.addConstraint(Sketcher.Constraint("DistanceY", 2, 3, -1, 1, 0.9))
pad6 = doc.addObject("PartDesign::Pad", "Pad005")
body.addObject(pad6)
pad6.Profile = sketch7
pad6.Length = 0.35
pad6.Reversed = True

# Sketch on XZ plane
sketch8 = doc.addObject("Sketcher::SketchObject", "Sketch007")
body.addObject(sketch8)
sketch8.AttachmentSupport = (doc.XZ_Plane, [""])
sketch8.MapMode = "FlatFace"
sketch8.AttachmentOffset = App.Placement(Vector(0, 0, -3.3), App.Rotation())
sketch8.addGeometry(Part.Circle(Vector(3.1, -3.1, 0), Vector(0, 0, 1), 1.7), False)
sketch8.addConstraint(Sketcher.Constraint("Diameter", 0, 3.35))
sketch8.addConstraint(Sketcher.Constraint("DistanceX", -1, 1, 0, 3, 3.1))
sketch8.addConstraint(Sketcher.Constraint("DistanceY", 0, 3, -1, 1, 3.1))
pad7 = doc.addObject("PartDesign::Pad", "Pad006")
body.addObject(pad7)
pad7.Profile = sketch8
pad7.Length = 1.5
pad7.Reversed = True
doc.recompute()

fillet = doc.addObject("PartDesign::Fillet", "Fillet")
body.addObject(fillet)
fillet.Base = (pad7, edges_at(pad7, [(1.425, 4.8, -3.1)]))
fillet.Radius = 0.1

doc.recompute()
